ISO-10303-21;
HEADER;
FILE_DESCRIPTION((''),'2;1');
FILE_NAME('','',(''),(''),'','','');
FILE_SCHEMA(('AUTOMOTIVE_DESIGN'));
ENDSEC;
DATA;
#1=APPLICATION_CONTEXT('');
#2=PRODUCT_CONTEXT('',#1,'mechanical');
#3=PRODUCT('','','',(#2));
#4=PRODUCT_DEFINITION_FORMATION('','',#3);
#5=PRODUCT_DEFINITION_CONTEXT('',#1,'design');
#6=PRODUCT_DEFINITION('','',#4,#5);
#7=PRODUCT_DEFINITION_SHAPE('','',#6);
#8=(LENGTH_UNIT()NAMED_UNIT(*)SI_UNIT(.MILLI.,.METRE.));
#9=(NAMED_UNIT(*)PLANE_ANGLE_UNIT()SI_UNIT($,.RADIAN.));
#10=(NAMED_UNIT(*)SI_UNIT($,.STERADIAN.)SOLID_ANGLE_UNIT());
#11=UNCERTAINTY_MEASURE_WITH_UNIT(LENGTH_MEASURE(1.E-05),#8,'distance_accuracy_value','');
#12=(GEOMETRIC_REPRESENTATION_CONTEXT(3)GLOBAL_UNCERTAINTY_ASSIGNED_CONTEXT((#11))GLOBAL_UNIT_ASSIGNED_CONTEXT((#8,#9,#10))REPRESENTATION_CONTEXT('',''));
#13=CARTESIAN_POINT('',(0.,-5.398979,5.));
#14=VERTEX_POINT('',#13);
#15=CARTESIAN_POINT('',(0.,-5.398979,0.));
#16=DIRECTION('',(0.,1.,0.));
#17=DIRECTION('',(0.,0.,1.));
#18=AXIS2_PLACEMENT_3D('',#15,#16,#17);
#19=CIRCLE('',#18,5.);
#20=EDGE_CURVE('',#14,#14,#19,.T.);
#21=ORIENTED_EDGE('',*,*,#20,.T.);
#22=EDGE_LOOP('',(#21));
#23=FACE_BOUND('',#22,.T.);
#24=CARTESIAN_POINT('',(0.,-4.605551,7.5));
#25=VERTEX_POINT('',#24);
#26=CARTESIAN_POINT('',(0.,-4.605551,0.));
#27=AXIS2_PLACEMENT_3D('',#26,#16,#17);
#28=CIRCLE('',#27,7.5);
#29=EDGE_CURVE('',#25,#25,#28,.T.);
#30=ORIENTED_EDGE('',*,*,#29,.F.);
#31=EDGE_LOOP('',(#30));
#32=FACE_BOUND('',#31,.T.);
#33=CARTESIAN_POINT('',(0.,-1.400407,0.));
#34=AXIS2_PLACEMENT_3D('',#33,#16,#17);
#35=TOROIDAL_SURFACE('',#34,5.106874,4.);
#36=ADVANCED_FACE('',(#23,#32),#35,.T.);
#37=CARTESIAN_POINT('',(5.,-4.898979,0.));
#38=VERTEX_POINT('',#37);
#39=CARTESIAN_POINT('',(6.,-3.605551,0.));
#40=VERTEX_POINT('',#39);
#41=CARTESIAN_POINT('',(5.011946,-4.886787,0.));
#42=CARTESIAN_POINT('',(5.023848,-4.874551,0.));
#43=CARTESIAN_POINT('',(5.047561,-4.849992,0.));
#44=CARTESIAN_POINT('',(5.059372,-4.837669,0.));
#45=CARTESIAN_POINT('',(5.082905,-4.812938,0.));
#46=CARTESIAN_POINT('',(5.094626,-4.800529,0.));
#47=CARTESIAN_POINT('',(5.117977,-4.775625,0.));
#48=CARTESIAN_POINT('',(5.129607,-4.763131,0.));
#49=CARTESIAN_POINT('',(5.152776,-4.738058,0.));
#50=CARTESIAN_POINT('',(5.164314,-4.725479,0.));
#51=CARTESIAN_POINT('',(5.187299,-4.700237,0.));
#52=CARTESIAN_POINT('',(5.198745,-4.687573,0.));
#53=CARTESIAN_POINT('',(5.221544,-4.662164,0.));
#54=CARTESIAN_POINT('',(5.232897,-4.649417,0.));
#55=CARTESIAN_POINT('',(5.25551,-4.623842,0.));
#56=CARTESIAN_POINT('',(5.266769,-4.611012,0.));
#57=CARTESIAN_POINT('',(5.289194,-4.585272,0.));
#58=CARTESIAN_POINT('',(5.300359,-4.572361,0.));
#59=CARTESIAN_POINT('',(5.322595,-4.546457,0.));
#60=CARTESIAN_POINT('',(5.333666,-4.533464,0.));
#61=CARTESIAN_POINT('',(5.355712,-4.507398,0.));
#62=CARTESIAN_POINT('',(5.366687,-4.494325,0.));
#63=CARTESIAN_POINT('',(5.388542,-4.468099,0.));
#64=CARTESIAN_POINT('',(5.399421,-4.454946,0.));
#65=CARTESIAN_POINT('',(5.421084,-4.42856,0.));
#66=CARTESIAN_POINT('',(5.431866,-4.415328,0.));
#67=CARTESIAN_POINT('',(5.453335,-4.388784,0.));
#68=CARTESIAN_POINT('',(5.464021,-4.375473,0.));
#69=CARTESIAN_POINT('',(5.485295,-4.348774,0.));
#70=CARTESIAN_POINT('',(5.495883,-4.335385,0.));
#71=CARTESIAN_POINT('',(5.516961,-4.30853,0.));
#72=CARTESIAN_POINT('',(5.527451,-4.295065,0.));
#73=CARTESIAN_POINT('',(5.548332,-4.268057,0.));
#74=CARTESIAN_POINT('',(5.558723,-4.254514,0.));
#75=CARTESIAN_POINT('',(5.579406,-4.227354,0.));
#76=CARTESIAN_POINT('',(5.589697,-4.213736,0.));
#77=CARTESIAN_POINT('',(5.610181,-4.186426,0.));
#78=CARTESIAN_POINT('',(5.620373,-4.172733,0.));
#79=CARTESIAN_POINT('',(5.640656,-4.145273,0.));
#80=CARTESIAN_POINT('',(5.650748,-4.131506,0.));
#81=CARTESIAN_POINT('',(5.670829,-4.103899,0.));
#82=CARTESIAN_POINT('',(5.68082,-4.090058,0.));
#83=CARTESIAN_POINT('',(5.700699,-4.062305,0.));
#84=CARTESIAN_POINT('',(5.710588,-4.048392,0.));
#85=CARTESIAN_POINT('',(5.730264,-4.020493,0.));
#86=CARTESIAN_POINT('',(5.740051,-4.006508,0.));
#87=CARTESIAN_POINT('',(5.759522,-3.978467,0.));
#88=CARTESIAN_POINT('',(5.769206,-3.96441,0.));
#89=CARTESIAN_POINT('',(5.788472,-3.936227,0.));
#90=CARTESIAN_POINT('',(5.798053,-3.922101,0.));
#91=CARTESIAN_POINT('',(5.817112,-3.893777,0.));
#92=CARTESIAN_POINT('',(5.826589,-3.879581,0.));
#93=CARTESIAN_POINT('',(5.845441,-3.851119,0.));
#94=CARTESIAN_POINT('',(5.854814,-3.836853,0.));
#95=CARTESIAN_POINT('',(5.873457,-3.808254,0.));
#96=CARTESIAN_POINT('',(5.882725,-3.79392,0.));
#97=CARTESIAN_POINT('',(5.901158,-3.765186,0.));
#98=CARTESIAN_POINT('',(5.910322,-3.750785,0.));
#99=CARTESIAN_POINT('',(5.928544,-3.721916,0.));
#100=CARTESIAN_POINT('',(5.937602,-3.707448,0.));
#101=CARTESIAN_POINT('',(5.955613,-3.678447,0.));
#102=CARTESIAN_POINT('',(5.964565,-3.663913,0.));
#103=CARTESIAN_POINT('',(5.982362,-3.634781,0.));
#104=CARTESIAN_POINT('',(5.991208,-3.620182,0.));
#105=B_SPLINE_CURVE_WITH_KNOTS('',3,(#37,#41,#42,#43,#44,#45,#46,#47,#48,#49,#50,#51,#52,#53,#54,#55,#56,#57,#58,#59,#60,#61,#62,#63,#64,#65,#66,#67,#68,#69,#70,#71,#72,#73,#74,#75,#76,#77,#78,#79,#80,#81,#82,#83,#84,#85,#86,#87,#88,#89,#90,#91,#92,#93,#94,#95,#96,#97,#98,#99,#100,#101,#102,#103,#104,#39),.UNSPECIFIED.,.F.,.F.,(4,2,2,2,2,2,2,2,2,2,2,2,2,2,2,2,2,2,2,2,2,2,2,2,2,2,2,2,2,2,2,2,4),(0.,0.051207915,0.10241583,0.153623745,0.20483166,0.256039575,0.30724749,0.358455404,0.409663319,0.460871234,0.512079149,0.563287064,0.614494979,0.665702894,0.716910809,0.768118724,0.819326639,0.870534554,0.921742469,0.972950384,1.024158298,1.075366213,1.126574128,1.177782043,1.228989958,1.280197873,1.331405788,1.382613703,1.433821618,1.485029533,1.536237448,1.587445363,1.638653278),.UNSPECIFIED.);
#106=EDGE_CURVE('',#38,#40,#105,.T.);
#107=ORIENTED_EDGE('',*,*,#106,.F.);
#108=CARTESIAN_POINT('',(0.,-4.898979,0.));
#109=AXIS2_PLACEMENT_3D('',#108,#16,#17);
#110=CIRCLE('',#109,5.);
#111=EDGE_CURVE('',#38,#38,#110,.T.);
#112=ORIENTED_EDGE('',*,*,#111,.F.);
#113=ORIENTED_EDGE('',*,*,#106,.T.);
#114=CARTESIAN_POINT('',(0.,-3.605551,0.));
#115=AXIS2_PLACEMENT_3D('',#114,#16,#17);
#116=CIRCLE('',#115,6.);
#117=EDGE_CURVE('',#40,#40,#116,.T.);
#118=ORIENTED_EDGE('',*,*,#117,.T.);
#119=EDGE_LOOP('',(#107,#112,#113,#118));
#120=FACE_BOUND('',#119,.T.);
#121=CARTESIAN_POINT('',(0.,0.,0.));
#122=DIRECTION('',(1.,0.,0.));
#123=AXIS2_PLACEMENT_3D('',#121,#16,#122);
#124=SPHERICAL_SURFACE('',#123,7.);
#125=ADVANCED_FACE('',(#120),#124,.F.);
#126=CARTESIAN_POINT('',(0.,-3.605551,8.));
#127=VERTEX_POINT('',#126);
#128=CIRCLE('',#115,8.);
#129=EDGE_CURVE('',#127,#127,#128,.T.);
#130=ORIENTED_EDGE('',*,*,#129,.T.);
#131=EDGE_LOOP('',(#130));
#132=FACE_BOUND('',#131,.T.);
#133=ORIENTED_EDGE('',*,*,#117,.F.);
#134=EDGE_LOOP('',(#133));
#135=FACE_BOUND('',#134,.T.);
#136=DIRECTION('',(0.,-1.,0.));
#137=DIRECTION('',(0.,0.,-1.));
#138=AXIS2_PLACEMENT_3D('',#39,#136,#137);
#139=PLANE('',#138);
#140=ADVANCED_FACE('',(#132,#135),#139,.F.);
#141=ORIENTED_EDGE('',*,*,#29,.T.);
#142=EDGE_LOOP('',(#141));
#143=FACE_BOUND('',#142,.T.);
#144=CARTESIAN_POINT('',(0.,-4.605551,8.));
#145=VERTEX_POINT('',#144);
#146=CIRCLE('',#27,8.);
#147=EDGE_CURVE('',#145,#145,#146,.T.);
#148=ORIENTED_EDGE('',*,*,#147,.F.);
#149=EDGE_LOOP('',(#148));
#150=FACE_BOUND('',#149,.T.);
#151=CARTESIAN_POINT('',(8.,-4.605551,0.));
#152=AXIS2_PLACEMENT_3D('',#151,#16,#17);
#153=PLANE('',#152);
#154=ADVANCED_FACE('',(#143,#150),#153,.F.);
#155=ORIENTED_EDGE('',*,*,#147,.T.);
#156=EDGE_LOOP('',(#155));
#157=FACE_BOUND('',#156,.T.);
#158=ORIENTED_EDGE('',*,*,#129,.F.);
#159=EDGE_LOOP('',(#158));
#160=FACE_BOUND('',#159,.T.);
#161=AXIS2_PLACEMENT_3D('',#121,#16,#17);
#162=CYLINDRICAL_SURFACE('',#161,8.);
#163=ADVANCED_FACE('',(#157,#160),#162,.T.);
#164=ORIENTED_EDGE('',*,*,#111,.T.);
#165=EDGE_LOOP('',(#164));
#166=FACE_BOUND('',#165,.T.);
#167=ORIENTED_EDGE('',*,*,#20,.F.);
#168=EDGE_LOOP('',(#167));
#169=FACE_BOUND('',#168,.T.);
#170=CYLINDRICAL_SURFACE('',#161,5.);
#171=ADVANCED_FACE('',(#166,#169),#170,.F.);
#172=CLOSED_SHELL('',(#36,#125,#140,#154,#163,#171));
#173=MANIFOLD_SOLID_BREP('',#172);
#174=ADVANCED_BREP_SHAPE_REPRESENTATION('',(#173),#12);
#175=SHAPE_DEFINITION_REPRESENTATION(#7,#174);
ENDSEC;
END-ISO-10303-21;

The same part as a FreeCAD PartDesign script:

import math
import FreeCAD as App
import Part
import Sketcher
Q = App.Units.Quantity

doc = App.newDocument("Part")
body = doc.addObject("PartDesign::Body", "Body")

# Sketch on XY plane
sketch1 = body.newObject("Sketcher::SketchObject", "Sketch")
sketch1.AttachmentSupport = (doc.getObject("XY_Plane"), [""])
sketch1.MapMode = "FlatFace"
sketch1.addGeometry([
    Part.LineSegment(App.Vector(8, -3.605551, 0), App.Vector(6, -3.605551, 0)),  # 0
    Part.ArcOfCircle(Part.Circle(App.Vector(0, 0, 0), App.Vector(0, 0, 1), 7), math.radians(-44.415309), math.radians(-31.002719)),  # 1
    Part.LineSegment(App.Vector(5, -4.898979, 0), App.Vector(5, -5.398979, 0)),  # 2
    Part.ArcOfCircle(Part.Circle(App.Vector(5.106874, -1.400407, 0), App.Vector(0, 0, 1), 4), math.radians(-91.531036), math.radians(-53.253077)),  # 3
    Part.LineSegment(App.Vector(7.5, -4.605551, 0), App.Vector(8, -4.605551, 0)),  # 4
    Part.LineSegment(App.Vector(8, -4.605551, 0), App.Vector(8, -3.605551, 0)),  # 5
], False)
sketch1.addConstraint([
    Sketcher.Constraint("Coincident", 0, 2, 1, 2),
    Sketcher.Constraint("Coincident", 1, 1, 2, 1),
    Sketcher.Constraint("Coincident", 2, 2, 3, 1),
    Sketcher.Constraint("Coincident", 3, 2, 4, 1),
    Sketcher.Constraint("Coincident", 4, 2, 5, 1),
    Sketcher.Constraint("Coincident", 5, 2, 0, 1),
    Sketcher.Constraint("Horizontal", 0),
    Sketcher.Constraint("Vertical", 2),
    Sketcher.Constraint("Horizontal", 4),
    Sketcher.Constraint("Vertical", 5),
    Sketcher.Constraint("Coincident", 1, 3, -1, 1),
    Sketcher.Constraint("Equal", 4, 2),
    Sketcher.Constraint("Radius", 1, Q("7 mm")),
    Sketcher.Constraint("Radius", 3, Q("4 mm")),
    Sketcher.Constraint("DistanceX", 0, 2, 0, 1, Q("2 mm")),
    Sketcher.Constraint("DistanceY", 5, 1, 5, 2, Q("1 mm")),
    Sketcher.Constraint("DistanceX", 4, 1, 4, 2, Q("0.5 mm")),
    Sketcher.Constraint("DistanceX", -1, 1, 0, 2, Q("6 mm")),
    Sketcher.Constraint("DistanceX", -1, 1, 1, 1, Q("5 mm")),
])
revolution = body.newObject("PartDesign::Revolution", "Revolution")
revolution.Profile = sketch1
revolution.ReferenceAxis = (sketch1, ["V_Axis"])
revolution.Angle = 360

doc.recompute()
